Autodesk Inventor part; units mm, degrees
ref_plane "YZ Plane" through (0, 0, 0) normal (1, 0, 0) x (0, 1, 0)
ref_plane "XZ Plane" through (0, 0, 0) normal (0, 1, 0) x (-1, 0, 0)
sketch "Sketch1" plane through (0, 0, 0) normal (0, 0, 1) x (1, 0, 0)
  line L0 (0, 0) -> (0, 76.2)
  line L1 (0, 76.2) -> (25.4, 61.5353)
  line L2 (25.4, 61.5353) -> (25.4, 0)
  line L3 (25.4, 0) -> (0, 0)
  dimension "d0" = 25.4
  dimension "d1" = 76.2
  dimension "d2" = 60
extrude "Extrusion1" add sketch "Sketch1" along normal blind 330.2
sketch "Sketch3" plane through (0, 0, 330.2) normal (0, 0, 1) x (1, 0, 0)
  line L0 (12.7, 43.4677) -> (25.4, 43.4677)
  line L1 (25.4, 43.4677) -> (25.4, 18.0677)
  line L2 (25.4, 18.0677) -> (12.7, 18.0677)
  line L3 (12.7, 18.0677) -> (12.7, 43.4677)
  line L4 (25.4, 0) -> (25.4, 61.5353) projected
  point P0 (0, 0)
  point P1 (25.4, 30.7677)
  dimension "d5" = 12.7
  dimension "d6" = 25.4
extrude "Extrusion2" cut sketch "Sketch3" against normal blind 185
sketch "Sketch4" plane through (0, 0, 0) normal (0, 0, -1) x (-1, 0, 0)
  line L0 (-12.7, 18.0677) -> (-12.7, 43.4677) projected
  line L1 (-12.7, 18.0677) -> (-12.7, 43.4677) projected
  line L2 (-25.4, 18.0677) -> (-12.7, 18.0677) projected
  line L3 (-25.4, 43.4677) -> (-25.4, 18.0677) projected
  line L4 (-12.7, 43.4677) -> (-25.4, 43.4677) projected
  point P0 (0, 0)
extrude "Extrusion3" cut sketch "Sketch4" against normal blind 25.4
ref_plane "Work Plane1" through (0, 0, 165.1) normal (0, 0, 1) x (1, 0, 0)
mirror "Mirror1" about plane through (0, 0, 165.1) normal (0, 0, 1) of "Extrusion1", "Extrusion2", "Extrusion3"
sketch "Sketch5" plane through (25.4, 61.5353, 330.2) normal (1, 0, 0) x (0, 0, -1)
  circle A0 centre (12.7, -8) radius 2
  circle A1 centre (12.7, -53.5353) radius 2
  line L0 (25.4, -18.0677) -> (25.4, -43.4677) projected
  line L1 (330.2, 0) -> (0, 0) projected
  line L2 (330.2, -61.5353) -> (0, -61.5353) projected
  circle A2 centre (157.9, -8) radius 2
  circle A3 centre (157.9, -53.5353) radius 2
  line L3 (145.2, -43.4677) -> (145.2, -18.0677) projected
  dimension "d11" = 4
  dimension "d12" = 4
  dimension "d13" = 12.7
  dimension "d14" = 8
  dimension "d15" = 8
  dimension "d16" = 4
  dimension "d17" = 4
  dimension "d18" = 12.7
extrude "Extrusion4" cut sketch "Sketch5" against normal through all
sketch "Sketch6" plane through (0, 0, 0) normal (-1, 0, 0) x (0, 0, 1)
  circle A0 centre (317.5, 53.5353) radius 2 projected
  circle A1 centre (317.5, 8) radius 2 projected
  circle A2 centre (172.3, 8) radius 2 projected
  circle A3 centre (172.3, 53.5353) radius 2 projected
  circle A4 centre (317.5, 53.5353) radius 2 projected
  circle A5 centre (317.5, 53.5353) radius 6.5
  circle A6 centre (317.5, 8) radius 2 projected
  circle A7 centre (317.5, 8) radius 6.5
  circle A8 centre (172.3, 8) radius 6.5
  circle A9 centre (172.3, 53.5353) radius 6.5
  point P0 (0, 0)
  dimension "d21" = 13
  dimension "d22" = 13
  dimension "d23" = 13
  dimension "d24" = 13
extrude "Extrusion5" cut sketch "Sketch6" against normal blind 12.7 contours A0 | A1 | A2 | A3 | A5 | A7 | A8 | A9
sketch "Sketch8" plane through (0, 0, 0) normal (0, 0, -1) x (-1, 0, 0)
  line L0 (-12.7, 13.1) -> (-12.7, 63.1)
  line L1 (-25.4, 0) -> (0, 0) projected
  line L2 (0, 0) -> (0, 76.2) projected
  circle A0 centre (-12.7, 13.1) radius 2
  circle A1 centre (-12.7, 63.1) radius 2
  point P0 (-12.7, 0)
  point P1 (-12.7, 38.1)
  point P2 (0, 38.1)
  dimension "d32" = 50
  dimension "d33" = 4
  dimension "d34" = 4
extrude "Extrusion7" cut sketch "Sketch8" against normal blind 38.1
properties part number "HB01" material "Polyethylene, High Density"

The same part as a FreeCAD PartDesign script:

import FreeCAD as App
import Part
import Sketcher

V = App.Vector
Q = App.Units.Quantity


def add_polygon(sketch, points):
    """Adds a closed chain of lines whose ends are joined by coincident constraints."""
    first, n = sketch.GeometryCount, len(points)
    for a, b in zip(points, points[1:] + points[:1]):
        sketch.addGeometry(Part.LineSegment(App.Vector(*a, 0), App.Vector(*b, 0)), False)
    for i in range(n):
        sketch.addConstraint(Sketcher.Constraint("Coincident", first + i, 2, first + (i + 1) % n, 1))

doc = App.newDocument("Part")
body = doc.addObject("PartDesign::Body", "Body")

# Sketch on XY plane
sketch1 = doc.addObject("Sketcher::SketchObject", "Sketch")
body.addObject(sketch1)
sketch1.AttachmentSupport = (doc.XY_Plane, [""])
sketch1.MapMode = "FlatFace"
add_polygon(sketch1, [(0, 76), (0, 0), (25, 0), (25, 62)])  # lines 0-3
sketch1.addConstraint([
    Sketcher.Constraint("Vertical", 0),
    Sketcher.Constraint("Horizontal", 1),
    Sketcher.Constraint("Vertical", 2),
    Sketcher.Constraint("Coincident", 0, 2, -1, 1),
    Sketcher.Constraint("DistanceX", 1, 1, 1, 2, Q("1 in")),
    Sketcher.Constraint("DistanceY", 0, 2, 0, 1, Q("3 in")),
    Sketcher.Constraint("Angle", 3, Q("150 deg")),
])
pad1 = doc.addObject("PartDesign::Pad", "Pad")
body.addObject(pad1)
pad1.Profile = sketch1
pad1.Length = Q("13 in")

# Sketch on XY plane
sketch2 = doc.addObject("Sketcher::SketchObject", "Sketch001")
body.addObject(sketch2)
sketch2.AttachmentSupport = (doc.XY_Plane, [""])
sketch2.MapMode = "FlatFace"
sketch2.AttachmentOffset = App.Placement(V(0, 0, 13 * 25.4), App.Rotation())
add_polygon(sketch2, [(25, 43), (13, 43), (13, 18), (25, 18)])  # lines 0-3
sketch2.addConstraint([
    Sketcher.Constraint("Horizontal", 0),
    Sketcher.Constraint("Vertical", 1),
    Sketcher.Constraint("Horizontal", 2),
    Sketcher.Constraint("Vertical", 3),
    Sketcher.Constraint("DistanceY", 1, 2, 1, 1, Q("1 in")),
    Sketcher.Constraint("DistanceX", 0, 2, 0, 1, Q("0.5 in")),
    Sketcher.Constraint("DistanceX", -1, 1, 2, 2, Q("1 in")),
    Sketcher.Constraint("DistanceY", -1, 1, 0, 2, Q("43.4677 mm")),
])
pocket1 = doc.addObject("PartDesign::Pocket", "Pocket")
body.addObject(pocket1)
pocket1.Profile = sketch2
pocket1.Length = 185

# Sketch on XY plane
sketch3 = doc.addObject("Sketcher::SketchObject", "Sketch002")
body.addObject(sketch3)
sketch3.AttachmentSupport = (doc.XY_Plane, [""])
sketch3.MapMode = "FlatFace"
add_polygon(sketch3, [(25, 18), (13, 18), (13, 43), (25, 43)])  # lines 0-3
sketch3.addConstraint([
    Sketcher.Constraint("Horizontal", 0),
    Sketcher.Constraint("Vertical", 1),
    Sketcher.Constraint("Horizontal", 2),
    Sketcher.Constraint("Vertical", 3),
    Sketcher.Constraint("DistanceY", 1, 1, 1, 2, Q("1 in")),
    Sketcher.Constraint("DistanceX", 0, 2, 0, 1, Q("0.5 in")),
    Sketcher.Constraint("DistanceX", -1, 1, 2, 2, Q("1 in")),
    Sketcher.Constraint("DistanceY", -1, 1, 0, 2, Q("18.0677 mm")),
])
pocket2 = doc.addObject("PartDesign::Pocket", "Pocket001")
body.addObject(pocket2)
pocket2.Profile = sketch3
pocket2.Length = Q("1 in")
pocket2.Reversed = True
doc.recompute()

datumplane = doc.addObject("PartDesign::Plane", "DatumPlane")
body.addObject(datumplane)
datumplane.AttachmentSupport = (doc.XY_Plane, [""])
datumplane.MapMode = "FlatFace"
datumplane.AttachmentOffset = App.Placement(V(0, 0, 6.5 * 25.4), App.Rotation())
mirrored = doc.addObject("PartDesign::Mirrored", "Mirrored")
body.addObject(mirrored)
mirrored.Originals = [pad1, pocket1, pocket2]
mirrored.MirrorPlane = (datumplane, [""])
body.Tip = mirrored

# Sketch on YZ plane
sketch4 = doc.addObject("Sketcher::SketchObject", "Sketch003")
body.addObject(sketch4)
sketch4.AttachmentSupport = (doc.YZ_Plane, [""])
sketch4.MapMode = "FlatFace"
sketch4.AttachmentOffset = App.Placement(V(0, 0, 1 * 25.4), App.Rotation())
sketch4.addGeometry([
    Part.Circle(V(53.5, 317.5, 0), V(0, 0, 1), 2),
    Part.Circle(V(8, 317.5, 0), V(0, 0, 1), 2),
    Part.Circle(V(53.5, 172.3, 0), V(0, 0, 1), 2),
    Part.Circle(V(8, 172.3, 0), V(0, 0, 1), 2),
], False)
sketch4.addConstraint([
    Sketcher.Constraint("Equal", 0, 1),
    Sketcher.Constraint("Equal", 1, 2),
    Sketcher.Constraint("Equal", 2, 3),
    Sketcher.Constraint("Horizontal", 0, 3, 1, 3),
    Sketcher.Constraint("Horizontal", 2, 3, 3, 3),
    Sketcher.Constraint("Vertical", 0, 3, 2, 3),
    Sketcher.Constraint("Vertical", 1, 3, 3, 3),
    Sketcher.Constraint("Diameter", 0, Q("4 mm")),
    Sketcher.Constraint("DistanceY", -1, 1, 0, 3, Q("12.5 in")),
    Sketcher.Constraint("DistanceX", -1, 1, 1, 3, Q("8 mm")),
    Sketcher.Constraint("DistanceX", -1, 1, 0, 3, Q("2.1077 in")),
    Sketcher.Constraint("DistanceY", -1, 1, 2, 3, Q("172.3 mm")),
])
pocket3 = doc.addObject("PartDesign::Pocket", "Pocket002")
body.addObject(pocket3)
pocket3.Profile = sketch4
pocket3.Type = "ThroughAll"

# Sketch on YZ plane
sketch5 = doc.addObject("Sketcher::SketchObject", "Sketch004")
body.addObject(sketch5)
sketch5.AttachmentSupport = (doc.YZ_Plane, [""])
sketch5.MapMode = "FlatFace"
sketch5.addGeometry([
    Part.Circle(V(54, 318, 0), V(0, 0, 1), 6),
    Part.Circle(V(8, 318, 0), V(0, 0, 1), 6),
    Part.Circle(V(8, 172, 0), V(0, 0, 1), 6),
    Part.Circle(V(54, 172, 0), V(0, 0, 1), 6),
], False)
sketch5.addConstraint([
    Sketcher.Constraint("Equal", 0, 1),
    Sketcher.Constraint("Equal", 1, 2),
    Sketcher.Constraint("Equal", 2, 3),
    Sketcher.Constraint("Horizontal", 0, 3, 1, 3),
    Sketcher.Constraint("Horizontal", 2, 3, 3, 3),
    Sketcher.Constraint("Vertical", 1, 3, 2, 3),
    Sketcher.Constraint("Vertical", 0, 3, 3, 3),
    Sketcher.Constraint("Diameter", 0, Q("0.5118 in")),
    Sketcher.Constraint("DistanceY", -1, 1, 0, 3, Q("12.5 in")),
    Sketcher.Constraint("DistanceX", -1, 1, 0, 3, Q("2.1077 in")),
    Sketcher.Constraint("DistanceX", -1, 1, 1, 3, Q("8 mm")),
    Sketcher.Constraint("DistanceY", -1, 1, 2, 3, Q("172.3 mm")),
])
pocket4 = doc.addObject("PartDesign::Pocket", "Pocket003")
body.addObject(pocket4)
pocket4.Profile = sketch5
pocket4.Length = Q("0.5 in")
pocket4.Reversed = True

# Sketch on XY plane
sketch6 = doc.addObject("Sketcher::SketchObject", "Sketch005")
body.addObject(sketch6)
sketch6.AttachmentSupport = (doc.XY_Plane, [""])
sketch6.MapMode = "FlatFace"
sketch6.addGeometry([
    Part.Circle(V(12.7, 63.1, 0), V(0, 0, 1), 2),
    Part.Circle(V(12.7, 13.1, 0), V(0, 0, 1), 2),
], False)
sketch6.addConstraint([
    Sketcher.Constraint("Equal", 0, 1),
    Sketcher.Constraint("Vertical", 0, 3, 1, 3),
    Sketcher.Constraint("Diameter", 0, Q("4 mm")),
    Sketcher.Constraint("DistanceX", -1, 1, 0, 3, Q("0.5 in")),
    Sketcher.Constraint("DistanceY", 1, 3, 0, 3, Q("1.9685 in")),
    Sketcher.Constraint("DistanceY", -1, 1, 0, 3, Q("63.1 mm")),
])
pocket5 = doc.addObject("PartDesign::Pocket", "Pocket004")
body.addObject(pocket5)
pocket5.Profile = sketch6
pocket5.Length = Q("1.5 in")
pocket5.Reversed = True

doc.recompute()
